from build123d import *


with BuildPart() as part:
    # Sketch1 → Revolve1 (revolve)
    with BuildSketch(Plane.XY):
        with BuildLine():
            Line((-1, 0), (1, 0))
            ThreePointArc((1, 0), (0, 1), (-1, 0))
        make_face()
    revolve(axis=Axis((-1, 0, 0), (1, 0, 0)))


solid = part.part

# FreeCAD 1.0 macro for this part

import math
import FreeCAD as App
import Part
import Sketcher
from FreeCAD import Vector
Q = App.Units.Quantity

doc = App.newDocument("Part")
body = doc.addObject("PartDesign::Body", "Body")

# Sketch on XY plane
sketch1 = body.newObject("Sketcher::SketchObject", "Sketch")
sketch1.AttachmentSupport = (doc.getObject("XY_Plane"), [""])
sketch1.MapMode = "FlatFace"
sketch1.addGeometry(Part.LineSegment(Vector(-1, 0, 0), Vector(1, 0, 0)), False)
sketch1.addGeometry(Part.ArcOfCircle(Part.Circle(Vector(0, 0, 0), Vector(0, 0, 1), 1), math.radians(0), math.radians(180)), False)
sketch1.addConstraint(Sketcher.Constraint("Coincident", 0, 1, 1, 2))
sketch1.addConstraint(Sketcher.Constraint("Coincident", 1, 1, 0, 2))
sketch1.addConstraint(Sketcher.Constraint("Horizontal", 0))
sketch1.addConstraint(Sketcher.Constraint("Coincident", 1, 3, -1, 1))
sketch1.addConstraint(Sketcher.Constraint("PointOnObject", 0, 1, -1))
sketch1.addConstraint(Sketcher.Constraint("Radius", 1, Q("1 mm")))
revolution = body.newObject("PartDesign::Revolution", "Revolution")
revolution.Profile = sketch1
revolution.ReferenceAxis = (sketch1, ["H_Axis"])
revolution.Angle = 360

doc.recompute()
